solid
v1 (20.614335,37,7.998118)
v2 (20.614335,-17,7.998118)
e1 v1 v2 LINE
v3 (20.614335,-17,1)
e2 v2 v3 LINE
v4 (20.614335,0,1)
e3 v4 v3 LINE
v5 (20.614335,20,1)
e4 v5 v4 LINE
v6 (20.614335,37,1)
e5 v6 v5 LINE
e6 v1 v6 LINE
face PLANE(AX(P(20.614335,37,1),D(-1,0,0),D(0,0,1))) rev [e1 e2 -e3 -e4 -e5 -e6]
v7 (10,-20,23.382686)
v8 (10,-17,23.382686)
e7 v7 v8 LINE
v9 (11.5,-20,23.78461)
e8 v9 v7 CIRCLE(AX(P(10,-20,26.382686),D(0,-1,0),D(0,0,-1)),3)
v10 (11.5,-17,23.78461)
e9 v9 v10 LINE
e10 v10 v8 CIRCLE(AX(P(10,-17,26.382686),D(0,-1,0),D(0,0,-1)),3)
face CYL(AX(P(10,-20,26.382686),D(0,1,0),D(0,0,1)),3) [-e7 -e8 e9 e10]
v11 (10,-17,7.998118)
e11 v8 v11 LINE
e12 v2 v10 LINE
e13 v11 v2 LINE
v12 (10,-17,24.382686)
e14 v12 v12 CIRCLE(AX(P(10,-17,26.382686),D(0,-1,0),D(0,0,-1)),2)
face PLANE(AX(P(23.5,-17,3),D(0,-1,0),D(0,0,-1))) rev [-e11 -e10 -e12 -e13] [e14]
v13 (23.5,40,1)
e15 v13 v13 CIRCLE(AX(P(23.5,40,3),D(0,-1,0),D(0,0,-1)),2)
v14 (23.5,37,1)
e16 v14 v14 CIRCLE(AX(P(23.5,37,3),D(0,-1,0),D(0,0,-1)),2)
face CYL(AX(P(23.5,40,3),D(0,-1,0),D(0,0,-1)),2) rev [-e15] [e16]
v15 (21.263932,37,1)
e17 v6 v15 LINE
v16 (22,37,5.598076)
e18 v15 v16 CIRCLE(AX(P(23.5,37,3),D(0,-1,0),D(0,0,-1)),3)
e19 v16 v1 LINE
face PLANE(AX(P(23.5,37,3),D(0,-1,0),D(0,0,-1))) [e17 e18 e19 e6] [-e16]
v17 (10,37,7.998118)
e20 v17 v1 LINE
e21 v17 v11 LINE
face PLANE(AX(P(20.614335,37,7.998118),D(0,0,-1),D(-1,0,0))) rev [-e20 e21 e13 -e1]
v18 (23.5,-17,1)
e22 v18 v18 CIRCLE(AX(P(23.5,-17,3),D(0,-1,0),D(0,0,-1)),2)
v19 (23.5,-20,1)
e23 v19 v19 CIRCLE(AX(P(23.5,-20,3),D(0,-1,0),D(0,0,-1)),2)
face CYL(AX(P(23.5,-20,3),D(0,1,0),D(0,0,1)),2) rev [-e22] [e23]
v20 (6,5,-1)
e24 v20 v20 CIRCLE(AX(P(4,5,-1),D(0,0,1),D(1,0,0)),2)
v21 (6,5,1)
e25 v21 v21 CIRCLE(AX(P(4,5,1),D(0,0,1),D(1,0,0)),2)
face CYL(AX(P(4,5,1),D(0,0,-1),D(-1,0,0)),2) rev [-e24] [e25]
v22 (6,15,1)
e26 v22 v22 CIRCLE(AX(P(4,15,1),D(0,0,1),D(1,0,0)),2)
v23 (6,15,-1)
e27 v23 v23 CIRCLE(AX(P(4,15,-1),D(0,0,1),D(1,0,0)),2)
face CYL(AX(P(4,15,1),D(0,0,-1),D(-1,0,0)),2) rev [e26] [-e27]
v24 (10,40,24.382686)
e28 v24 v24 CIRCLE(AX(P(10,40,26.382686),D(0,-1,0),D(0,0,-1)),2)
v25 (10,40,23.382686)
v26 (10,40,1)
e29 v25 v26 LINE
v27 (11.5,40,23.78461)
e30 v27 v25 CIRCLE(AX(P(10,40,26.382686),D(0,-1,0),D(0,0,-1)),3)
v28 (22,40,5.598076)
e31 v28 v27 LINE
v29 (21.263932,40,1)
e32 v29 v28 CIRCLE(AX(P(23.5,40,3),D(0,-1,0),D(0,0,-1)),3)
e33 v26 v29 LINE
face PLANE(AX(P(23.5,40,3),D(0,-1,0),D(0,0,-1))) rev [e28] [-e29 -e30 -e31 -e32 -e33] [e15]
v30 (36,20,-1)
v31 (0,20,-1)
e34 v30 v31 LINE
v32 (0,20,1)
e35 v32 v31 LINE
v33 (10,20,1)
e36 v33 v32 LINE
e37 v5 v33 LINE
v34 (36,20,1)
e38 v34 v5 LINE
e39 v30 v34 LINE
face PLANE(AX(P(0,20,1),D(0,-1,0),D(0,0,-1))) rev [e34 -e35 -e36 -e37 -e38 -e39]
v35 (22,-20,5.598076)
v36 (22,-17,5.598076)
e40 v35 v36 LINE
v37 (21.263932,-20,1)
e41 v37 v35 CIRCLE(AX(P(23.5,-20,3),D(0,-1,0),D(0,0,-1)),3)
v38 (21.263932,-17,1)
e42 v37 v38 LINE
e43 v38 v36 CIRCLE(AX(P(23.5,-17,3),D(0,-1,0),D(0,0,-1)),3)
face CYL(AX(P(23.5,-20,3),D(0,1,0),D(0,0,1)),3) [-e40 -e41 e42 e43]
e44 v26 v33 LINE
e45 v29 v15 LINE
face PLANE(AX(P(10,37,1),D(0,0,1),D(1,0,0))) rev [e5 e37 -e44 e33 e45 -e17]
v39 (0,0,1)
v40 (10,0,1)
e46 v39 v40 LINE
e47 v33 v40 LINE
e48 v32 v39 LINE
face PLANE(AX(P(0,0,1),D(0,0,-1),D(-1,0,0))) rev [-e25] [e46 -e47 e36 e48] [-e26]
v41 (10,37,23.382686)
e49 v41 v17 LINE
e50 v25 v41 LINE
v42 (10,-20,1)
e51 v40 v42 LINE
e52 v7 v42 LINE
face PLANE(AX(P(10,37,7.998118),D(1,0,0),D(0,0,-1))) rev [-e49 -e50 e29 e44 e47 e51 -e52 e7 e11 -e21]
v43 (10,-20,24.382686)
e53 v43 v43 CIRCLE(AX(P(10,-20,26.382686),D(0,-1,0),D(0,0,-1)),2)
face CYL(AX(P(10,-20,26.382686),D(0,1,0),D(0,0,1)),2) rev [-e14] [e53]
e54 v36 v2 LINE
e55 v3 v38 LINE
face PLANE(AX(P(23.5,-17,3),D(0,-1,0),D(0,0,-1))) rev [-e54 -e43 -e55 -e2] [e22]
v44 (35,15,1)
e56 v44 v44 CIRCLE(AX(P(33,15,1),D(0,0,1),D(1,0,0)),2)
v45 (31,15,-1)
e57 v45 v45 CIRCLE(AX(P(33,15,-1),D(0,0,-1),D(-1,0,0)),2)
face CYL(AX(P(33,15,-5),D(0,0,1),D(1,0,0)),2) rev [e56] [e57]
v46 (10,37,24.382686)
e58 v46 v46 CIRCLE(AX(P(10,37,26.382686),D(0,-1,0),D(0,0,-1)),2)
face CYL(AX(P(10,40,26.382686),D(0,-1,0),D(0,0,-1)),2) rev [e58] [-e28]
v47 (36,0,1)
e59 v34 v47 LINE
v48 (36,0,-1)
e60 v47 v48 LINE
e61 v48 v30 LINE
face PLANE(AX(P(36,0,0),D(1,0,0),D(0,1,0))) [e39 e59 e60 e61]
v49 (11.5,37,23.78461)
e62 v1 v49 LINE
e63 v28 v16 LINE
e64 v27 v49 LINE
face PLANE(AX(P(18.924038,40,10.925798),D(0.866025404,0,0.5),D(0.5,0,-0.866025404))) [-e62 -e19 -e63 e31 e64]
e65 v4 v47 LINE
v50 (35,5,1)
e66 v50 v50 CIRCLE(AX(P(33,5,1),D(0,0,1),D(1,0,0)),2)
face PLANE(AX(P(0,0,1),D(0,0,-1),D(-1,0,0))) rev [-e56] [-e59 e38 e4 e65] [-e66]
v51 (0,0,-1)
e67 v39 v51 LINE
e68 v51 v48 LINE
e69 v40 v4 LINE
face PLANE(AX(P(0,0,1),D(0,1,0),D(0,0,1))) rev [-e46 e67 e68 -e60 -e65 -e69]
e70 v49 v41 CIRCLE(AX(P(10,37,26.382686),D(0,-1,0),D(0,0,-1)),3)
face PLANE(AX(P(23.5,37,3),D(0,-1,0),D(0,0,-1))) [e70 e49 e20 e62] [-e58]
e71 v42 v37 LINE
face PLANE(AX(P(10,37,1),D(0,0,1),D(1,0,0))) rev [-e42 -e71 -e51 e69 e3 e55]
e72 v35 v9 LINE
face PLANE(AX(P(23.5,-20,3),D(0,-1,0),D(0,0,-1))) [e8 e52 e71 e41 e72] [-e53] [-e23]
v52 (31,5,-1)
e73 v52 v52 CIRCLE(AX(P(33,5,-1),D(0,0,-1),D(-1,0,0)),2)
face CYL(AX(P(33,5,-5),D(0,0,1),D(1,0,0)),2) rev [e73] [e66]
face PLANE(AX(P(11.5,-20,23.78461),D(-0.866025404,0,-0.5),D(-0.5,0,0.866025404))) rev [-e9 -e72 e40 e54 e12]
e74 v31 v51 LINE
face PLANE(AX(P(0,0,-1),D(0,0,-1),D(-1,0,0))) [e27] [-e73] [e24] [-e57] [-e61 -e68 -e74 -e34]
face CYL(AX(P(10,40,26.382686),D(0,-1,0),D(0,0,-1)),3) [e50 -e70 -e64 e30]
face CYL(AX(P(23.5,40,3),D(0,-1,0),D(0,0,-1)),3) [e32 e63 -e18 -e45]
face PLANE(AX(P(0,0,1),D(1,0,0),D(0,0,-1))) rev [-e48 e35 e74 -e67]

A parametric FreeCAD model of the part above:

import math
import FreeCAD as App
import Part
import Sketcher

V = App.Vector
Q = App.Units.Quantity


def add_polygon(sketch, points):
    """Adds a closed chain of lines whose ends are joined by coincident constraints."""
    first, n = sketch.GeometryCount, len(points)
    for a, b in zip(points, points[1:] + points[:1]):
        sketch.addGeometry(Part.LineSegment(App.Vector(*a, 0), App.Vector(*b, 0)), False)
    for i in range(n):
        sketch.addConstraint(Sketcher.Constraint("Coincident", first + i, 2, first + (i + 1) % n, 1))

doc = App.newDocument("Part")
body = doc.addObject("PartDesign::Body", "Body")

# Sketch on XY plane
sketch1 = doc.addObject("Sketcher::SketchObject", "Sketch")
body.addObject(sketch1)
sketch1.AttachmentSupport = (doc.XY_Plane, [""])
sketch1.MapMode = "FlatFace"
add_polygon(sketch1, [(0, 20), (0, 0), (30, 0), (30, 20)])  # lines 0-3
sketch1.addGeometry(Part.Circle(V(4, 5, 0), V(0, 0, 1), 2), False)  # 4
sketch1.addGeometry(Part.Circle(V(4, 15, 0), V(0, 0, 1), 2), False)  # 5
sketch1.addConstraint([
    Sketcher.Constraint("Vertical", 0),
    Sketcher.Constraint("Horizontal", 1),
    Sketcher.Constraint("Vertical", 2),
    Sketcher.Constraint("Horizontal", 3),
    Sketcher.Constraint("Coincident", 0, 2, -1, 1),
    Sketcher.Constraint("Equal", 4, 5),
    Sketcher.Constraint("Vertical", 4, 3, 5, 3),
    Sketcher.Constraint("Diameter", 4, 4.0),
    Sketcher.Constraint("DistanceX", 1, 1, 1, 2, 30.0),
    Sketcher.Constraint("DistanceY", 0, 2, 0, 1, 20.0),
    Sketcher.Constraint("DistanceX", -1, 1, 4, 3, 4.0),
    Sketcher.Constraint("DistanceY", -1, 1, 4, 3, 5.0),
    Sketcher.Constraint("DistanceY", -1, 1, 5, 3, 15.0),
])
pad1 = doc.addObject("PartDesign::Pad", "Pad")
body.addObject(pad1)
pad1.Profile = sketch1
pad1.Length = 2
pad1.Midplane = True

# Sketch on YZ plane
sketch2 = doc.addObject("Sketcher::SketchObject", "Sketch001")
body.addObject(sketch2)
sketch2.AttachmentSupport = (doc.YZ_Plane, [""])
sketch2.MapMode = "FlatFace"
sketch2.AttachmentOffset = App.Placement(V(0, 0, 30), App.Rotation())
add_polygon(sketch2, [(20, 1), (0, 1), (0, -1), (20, -1)])  # lines 0-3
sketch2.addConstraint([
    Sketcher.Constraint("Horizontal", 0),
    Sketcher.Constraint("Vertical", 1),
    Sketcher.Constraint("Horizontal", 2),
    Sketcher.Constraint("Vertical", 3),
    Sketcher.Constraint("Symmetric", 0, 2, 1, 2, -1, 1),
    Sketcher.Constraint("DistanceX", 0, 2, 0, 1, 20.0),
    Sketcher.Constraint("DistanceY", 1, 2, 1, 1, 2.0),
])
pad2 = doc.addObject("PartDesign::Pad", "Pad001")
body.addObject(pad2)
pad2.Profile = sketch2
pad2.Length = 6

# Sketch on XY plane
sketch3 = doc.addObject("Sketcher::SketchObject", "Sketch002")
body.addObject(sketch3)
sketch3.AttachmentSupport = (doc.XY_Plane, [""])
sketch3.MapMode = "FlatFace"
sketch3.AttachmentOffset = App.Placement(V(0, 0, 1), App.Rotation())
sketch3.addGeometry([
    Part.Circle(V(33, 15, 0), V(0, 0, 1), 2),
    Part.Circle(V(33, 5, 0), V(0, 0, 1), 2),
], False)
sketch3.addConstraint([
    Sketcher.Constraint("Equal", 0, 1),
    Sketcher.Constraint("Vertical", 0, 3, 1, 3),
    Sketcher.Constraint("Diameter", 0, 4.0),
    Sketcher.Constraint("DistanceX", -1, 1, 0, 3, 33.0),
    Sketcher.Constraint("DistanceY", -1, 1, 0, 3, 15.0),
    Sketcher.Constraint("DistanceY", -1, 1, 1, 3, 5.0),
])
pocket1 = doc.addObject("PartDesign::Pocket", "Pocket")
body.addObject(pocket1)
pocket1.Profile = sketch3
pocket1.Length = 6

# Sketch on XZ plane
sketch4 = doc.addObject("Sketcher::SketchObject", "Sketch003")
body.addObject(sketch4)
sketch4.AttachmentSupport = (doc.XZ_Plane, [""])
sketch4.MapMode = "FlatFace"
sketch4.AttachmentOffset = App.Placement(V(0, 0, 17), App.Rotation())
add_polygon(sketch4, [(10, 1), (10, 8), (21, 8), (21, 1)])  # lines 0-3
sketch4.addConstraint([
    Sketcher.Constraint("Vertical", 0),
    Sketcher.Constraint("Horizontal", 1),
    Sketcher.Constraint("Vertical", 2),
    Sketcher.Constraint("Horizontal", 3),
    Sketcher.Constraint("DistanceX", -1, 1, 0, 2, 10.0),
    Sketcher.Constraint("DistanceY", -1, 1, 2, 2, 1.0),
    Sketcher.Constraint("DistanceY", 0, 1, 0, 2, 6.998118),
    Sketcher.Constraint("DistanceX", 1, 1, 1, 2, 10.614335),
])
pad3 = doc.addObject("PartDesign::Pad", "Pad002")
body.addObject(pad3)
pad3.Profile = sketch4
pad3.Length = 54
pad3.Reversed = True

# Sketch on XZ plane
sketch5 = doc.addObject("Sketcher::SketchObject", "Sketch004")
body.addObject(sketch5)
sketch5.AttachmentSupport = (doc.XZ_Plane, [""])
sketch5.MapMode = "FlatFace"
sketch5.AttachmentOffset = App.Placement(V(0, 0, 17), App.Rotation())
sketch5.addGeometry([
    Part.LineSegment(V(10, 1, 0), V(21.3, 1, 0)),  # 0
    Part.ArcOfCircle(Part.Circle(V(23.5, 3, 0), V(0, 0, 1), 3), math.radians(-138), math.radians(120)),  # 1
    Part.LineSegment(V(22, 5.6, 0), V(11.5, 23.8, 0)),  # 2
    Part.ArcOfCircle(Part.Circle(V(10, 26.4, 0), V(0, 0, 1), 3), math.radians(-60), math.radians(270)),  # 3
    Part.LineSegment(V(10, 23.4, 0), V(10, 1, 0)),  # 4
    Part.Circle(V(23.5, 3, 0), V(0, 0, 1), 2),  # 5
    Part.Circle(V(10, 26.4, 0), V(0, 0, 1), 2),  # 6
], False)
sketch5.addConstraint([
    Sketcher.Constraint("Coincident", 0, 2, 1, 1),
    Sketcher.Constraint("Coincident", 1, 2, 2, 1),
    Sketcher.Constraint("Coincident", 2, 2, 3, 1),
    Sketcher.Constraint("Coincident", 3, 2, 4, 1),
    Sketcher.Constraint("Coincident", 4, 2, 0, 1),
    Sketcher.Constraint("Horizontal", 0),
    Sketcher.Constraint("Vertical", 4),
    Sketcher.Constraint("Coincident", 5, 3, 1, 3),
    Sketcher.Constraint("Coincident", 6, 3, 3, 3),
    Sketcher.Constraint("Equal", 1, 3),
    Sketcher.Constraint("Equal", 5, 6),
    Sketcher.Constraint("Vertical", 6, 3, 3, 2),
    Sketcher.Constraint("Diameter", 5, 4.0),
    Sketcher.Constraint("Radius", 1, 3.0),
    Sketcher.Constraint("Angle", 2, Q("120 deg")),
    Sketcher.Constraint("Distance", 2, 21.0),
    Sketcher.Constraint("DistanceY", -1, 1, 1, 3, 3.0),
    Sketcher.Constraint("DistanceX", -1, 1, 3, 3, 10.0),
    Sketcher.Constraint("DistanceY", -1, 1, 0, 2, 1.0),
    Sketcher.Constraint("DistanceX", -1, 1, 1, 2, 22.0),
    Sketcher.Constraint("DistanceX", 2, 2, 1, 3, 12.0),
])
pad4 = doc.addObject("PartDesign::Pad", "Pad003")
body.addObject(pad4)
pad4.Profile = sketch5
pad4.Length = 3

# Sketch on XZ plane
sketch6 = doc.addObject("Sketcher::SketchObject", "Sketch005")
body.addObject(sketch6)
sketch6.AttachmentSupport = (doc.XZ_Plane, [""])
sketch6.MapMode = "FlatFace"
sketch6.AttachmentOffset = App.Placement(V(0, 0, -40), App.Rotation())
sketch6.addGeometry([
    Part.LineSegment(V(10, 1, 0), V(21.3, 1, 0)),  # 0
    Part.ArcOfCircle(Part.Circle(V(23.5, 3, 0), V(0, 0, 1), 3), math.radians(-138), math.radians(120)),  # 1
    Part.LineSegment(V(22, 5.6, 0), V(11.5, 23.8, 0)),  # 2
    Part.ArcOfCircle(Part.Circle(V(10, 26.4, 0), V(0, 0, 1), 3), math.radians(-60), math.radians(270)),  # 3
    Part.LineSegment(V(10, 23.4, 0), V(10, 1, 0)),  # 4
    Part.Circle(V(23.5, 3, 0), V(0, 0, 1), 2),  # 5
    Part.Circle(V(10, 26.4, 0), V(0, 0, 1), 2),  # 6
], False)
sketch6.addConstraint([
    Sketcher.Constraint("Coincident", 0, 2, 1, 1),
    Sketcher.Constraint("Coincident", 1, 2, 2, 1),
    Sketcher.Constraint("Coincident", 2, 2, 3, 1),
    Sketcher.Constraint("Coincident", 3, 2, 4, 1),
    Sketcher.Constraint("Coincident", 4, 2, 0, 1),
    Sketcher.Constraint("Horizontal", 0),
    Sketcher.Constraint("Vertical", 4),
    Sketcher.Constraint("Coincident", 5, 3, 1, 3),
    Sketcher.Constraint("Coincident", 6, 3, 3, 3),
    Sketcher.Constraint("Equal", 1, 3),
    Sketcher.Constraint("Equal", 5, 6),
    Sketcher.Constraint("Vertical", 6, 3, 3, 2),
    Sketcher.Constraint("Diameter", 5, 4.0),
    Sketcher.Constraint("Radius", 1, 3.0),
    Sketcher.Constraint("Angle", 2, Q("120 deg")),
    Sketcher.Constraint("Distance", 2, 21.0),
    Sketcher.Constraint("DistanceY", -1, 1, 1, 3, 3.0),
    Sketcher.Constraint("DistanceX", -1, 1, 3, 3, 10.0),
    Sketcher.Constraint("DistanceY", -1, 1, 0, 2, 1.0),
    Sketcher.Constraint("DistanceX", -1, 1, 1, 2, 22.0),
    Sketcher.Constraint("DistanceX", 2, 2, 1, 3, 12.0),
])
pad5 = doc.addObject("PartDesign::Pad", "Pad004")
body.addObject(pad5)
pad5.Profile = sketch6
pad5.Length = 3

doc.recompute()
